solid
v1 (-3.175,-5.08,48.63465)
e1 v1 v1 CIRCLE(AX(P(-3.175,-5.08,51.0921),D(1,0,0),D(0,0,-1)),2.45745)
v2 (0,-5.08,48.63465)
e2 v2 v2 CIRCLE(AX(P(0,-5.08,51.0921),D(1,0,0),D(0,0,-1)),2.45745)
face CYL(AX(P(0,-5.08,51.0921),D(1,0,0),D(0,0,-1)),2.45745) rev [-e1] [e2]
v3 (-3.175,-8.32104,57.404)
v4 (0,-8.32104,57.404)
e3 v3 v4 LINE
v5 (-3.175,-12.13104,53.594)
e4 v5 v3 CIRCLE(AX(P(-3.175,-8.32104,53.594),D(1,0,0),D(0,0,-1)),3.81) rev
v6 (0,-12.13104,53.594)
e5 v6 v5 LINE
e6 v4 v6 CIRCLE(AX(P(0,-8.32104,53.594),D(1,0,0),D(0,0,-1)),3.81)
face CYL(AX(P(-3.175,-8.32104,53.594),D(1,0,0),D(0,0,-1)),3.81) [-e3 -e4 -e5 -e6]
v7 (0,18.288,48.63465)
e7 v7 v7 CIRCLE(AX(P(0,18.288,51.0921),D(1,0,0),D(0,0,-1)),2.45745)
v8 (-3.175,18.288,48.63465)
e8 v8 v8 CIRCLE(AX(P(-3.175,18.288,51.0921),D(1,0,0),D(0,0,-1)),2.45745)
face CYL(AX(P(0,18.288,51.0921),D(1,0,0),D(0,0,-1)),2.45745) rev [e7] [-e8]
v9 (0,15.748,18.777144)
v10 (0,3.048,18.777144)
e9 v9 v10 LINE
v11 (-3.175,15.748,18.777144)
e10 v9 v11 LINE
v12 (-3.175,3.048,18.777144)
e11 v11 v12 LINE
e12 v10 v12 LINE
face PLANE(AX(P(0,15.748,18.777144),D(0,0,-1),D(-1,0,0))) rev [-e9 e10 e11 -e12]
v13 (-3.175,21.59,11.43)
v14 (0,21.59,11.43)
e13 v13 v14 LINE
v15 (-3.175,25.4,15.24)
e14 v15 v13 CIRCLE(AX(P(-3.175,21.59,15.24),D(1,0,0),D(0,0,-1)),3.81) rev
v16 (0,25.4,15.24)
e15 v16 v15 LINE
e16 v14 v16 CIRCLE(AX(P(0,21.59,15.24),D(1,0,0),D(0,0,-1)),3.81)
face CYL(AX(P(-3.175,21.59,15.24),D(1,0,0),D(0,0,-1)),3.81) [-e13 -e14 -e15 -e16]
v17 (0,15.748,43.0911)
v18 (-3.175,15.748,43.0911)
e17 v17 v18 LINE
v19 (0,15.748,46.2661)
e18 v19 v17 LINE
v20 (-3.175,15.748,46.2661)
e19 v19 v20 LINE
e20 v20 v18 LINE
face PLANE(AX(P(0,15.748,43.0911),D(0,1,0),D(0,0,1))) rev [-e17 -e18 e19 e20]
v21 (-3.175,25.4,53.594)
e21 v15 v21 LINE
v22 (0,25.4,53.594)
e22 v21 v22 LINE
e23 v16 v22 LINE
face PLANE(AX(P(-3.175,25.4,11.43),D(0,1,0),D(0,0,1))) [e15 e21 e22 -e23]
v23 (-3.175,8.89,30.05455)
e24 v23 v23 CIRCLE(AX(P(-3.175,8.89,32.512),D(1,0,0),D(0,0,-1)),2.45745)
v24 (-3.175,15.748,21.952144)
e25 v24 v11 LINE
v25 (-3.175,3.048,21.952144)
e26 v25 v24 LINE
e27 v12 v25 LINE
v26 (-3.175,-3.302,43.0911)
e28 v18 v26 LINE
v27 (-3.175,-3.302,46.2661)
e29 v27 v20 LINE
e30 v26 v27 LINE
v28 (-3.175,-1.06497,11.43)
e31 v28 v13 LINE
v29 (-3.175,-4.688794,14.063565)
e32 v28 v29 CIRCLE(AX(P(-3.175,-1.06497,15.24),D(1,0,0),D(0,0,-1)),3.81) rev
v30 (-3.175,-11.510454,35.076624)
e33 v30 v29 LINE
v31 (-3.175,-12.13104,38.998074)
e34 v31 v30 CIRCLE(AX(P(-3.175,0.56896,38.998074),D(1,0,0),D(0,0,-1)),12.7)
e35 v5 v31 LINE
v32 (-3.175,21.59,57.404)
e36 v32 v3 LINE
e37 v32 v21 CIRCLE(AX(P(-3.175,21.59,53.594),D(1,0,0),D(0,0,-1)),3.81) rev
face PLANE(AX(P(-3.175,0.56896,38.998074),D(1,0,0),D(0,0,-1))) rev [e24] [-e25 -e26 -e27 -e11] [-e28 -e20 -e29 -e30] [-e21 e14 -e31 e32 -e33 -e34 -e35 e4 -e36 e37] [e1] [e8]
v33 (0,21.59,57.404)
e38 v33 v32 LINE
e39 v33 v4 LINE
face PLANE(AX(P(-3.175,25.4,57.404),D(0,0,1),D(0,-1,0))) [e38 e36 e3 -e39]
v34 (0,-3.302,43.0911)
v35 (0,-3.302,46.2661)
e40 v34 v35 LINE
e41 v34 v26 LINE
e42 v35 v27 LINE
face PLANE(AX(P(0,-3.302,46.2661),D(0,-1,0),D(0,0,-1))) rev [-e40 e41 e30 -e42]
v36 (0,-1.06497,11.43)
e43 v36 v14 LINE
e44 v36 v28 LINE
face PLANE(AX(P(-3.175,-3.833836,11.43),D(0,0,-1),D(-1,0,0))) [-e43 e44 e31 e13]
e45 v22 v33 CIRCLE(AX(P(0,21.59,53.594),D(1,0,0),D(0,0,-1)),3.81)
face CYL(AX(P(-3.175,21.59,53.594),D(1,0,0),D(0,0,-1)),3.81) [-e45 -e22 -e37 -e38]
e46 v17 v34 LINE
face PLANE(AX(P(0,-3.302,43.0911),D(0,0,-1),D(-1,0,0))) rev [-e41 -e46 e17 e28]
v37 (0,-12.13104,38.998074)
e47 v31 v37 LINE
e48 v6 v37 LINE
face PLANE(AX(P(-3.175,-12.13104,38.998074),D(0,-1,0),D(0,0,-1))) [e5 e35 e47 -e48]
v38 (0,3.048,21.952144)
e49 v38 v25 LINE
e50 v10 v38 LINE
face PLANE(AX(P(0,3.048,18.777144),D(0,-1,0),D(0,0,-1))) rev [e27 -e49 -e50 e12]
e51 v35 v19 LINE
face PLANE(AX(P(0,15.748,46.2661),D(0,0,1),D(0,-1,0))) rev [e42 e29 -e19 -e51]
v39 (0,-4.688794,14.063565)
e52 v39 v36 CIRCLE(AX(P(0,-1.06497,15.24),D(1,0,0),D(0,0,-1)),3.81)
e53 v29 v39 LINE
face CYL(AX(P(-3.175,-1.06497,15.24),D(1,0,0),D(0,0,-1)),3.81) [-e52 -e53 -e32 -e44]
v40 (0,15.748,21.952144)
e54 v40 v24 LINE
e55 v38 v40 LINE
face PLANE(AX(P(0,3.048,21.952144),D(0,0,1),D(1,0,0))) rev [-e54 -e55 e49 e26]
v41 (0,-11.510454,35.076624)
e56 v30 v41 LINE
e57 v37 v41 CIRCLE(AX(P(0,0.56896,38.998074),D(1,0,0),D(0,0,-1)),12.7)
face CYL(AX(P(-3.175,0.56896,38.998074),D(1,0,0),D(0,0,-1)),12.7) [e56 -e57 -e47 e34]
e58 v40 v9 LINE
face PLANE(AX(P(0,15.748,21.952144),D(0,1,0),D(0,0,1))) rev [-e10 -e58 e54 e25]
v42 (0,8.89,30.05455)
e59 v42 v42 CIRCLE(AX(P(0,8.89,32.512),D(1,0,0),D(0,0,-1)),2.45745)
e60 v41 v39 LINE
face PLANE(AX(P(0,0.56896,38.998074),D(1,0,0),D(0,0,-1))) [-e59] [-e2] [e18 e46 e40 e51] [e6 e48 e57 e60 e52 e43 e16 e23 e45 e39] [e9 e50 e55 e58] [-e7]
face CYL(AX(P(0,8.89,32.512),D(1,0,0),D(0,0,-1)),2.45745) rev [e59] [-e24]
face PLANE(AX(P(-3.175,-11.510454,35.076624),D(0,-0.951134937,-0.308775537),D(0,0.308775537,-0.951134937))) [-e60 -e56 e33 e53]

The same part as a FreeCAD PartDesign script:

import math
import FreeCAD as App
import Part
import Sketcher
from FreeCAD import Vector
Q = App.Units.Quantity


def edges_at(feature, points):
    """Names of the edges that pass closest to the given points."""
    edges = feature.Shape.Edges
    near = lambda p: min(range(len(edges)), key=lambda i: edges[i].distToShape(Part.Vertex(*p))[0])
    return sorted({f"Edge{near(p) + 1}" for p in points})


def add_polygon(sketch, points):
    """Adds a closed chain of lines whose ends are joined by coincident constraints."""
    first, n = sketch.GeometryCount, len(points)
    for a, b in zip(points, points[1:] + points[:1]):
        sketch.addGeometry(Part.LineSegment(App.Vector(*a, 0), App.Vector(*b, 0)), False)
    for i in range(n):
        sketch.addConstraint(Sketcher.Constraint("Coincident", first + i, 2, first + (i + 1) % n, 1))

doc = App.newDocument("Part")
params = doc.addObject("Spreadsheet::Sheet", "Params")
for row, (alias, value) in enumerate([
    ("sketch1_radius", "0.5 in"),
    ("sketch1_height", "1.81 in"),
    ("pad1_length", "0.125 in"),
    ("hole_diameter", "0.1935 in"),
    ("hole_depth", "0.44 in"),
    ("sketch3_width", "0.5 in"),
    ("sketch3_width2", "0.75 in"),
    ("sketch3_height", "0.125 in"),
    ("fillet_radius", "0.15 in"),
], start=1):
    params.set(f"A{row}", alias)
    params.set(f"B{row}", "=" + value)
    params.setAlias(f"B{row}", alias)

body = doc.addObject("PartDesign::Body", "Body")

# Sketch on YZ plane
sketch1 = body.newObject("Sketcher::SketchObject", "Sketch")
sketch1.AttachmentSupport = (doc.getObject("YZ_Plane"), [""])
sketch1.MapMode = "FlatFace"
sketch1.addGeometry([
    Part.LineSegment(Vector(25.4, 11.43, 0), Vector(25.4, 57.404, 0)),  # 0
    Part.LineSegment(Vector(25.4, 57.404, 0), Vector(-12.13104, 57.404, 0)),  # 1
    Part.LineSegment(Vector(-12.13104, 57.404, 0), Vector(-12.13104, 38.998074, 0)),  # 2
    Part.ArcOfCircle(Part.Circle(Vector(0.56896, 38.998074, 0), Vector(0, 0, 1), 12.7), math.radians(180), math.radians(197.985454)),  # 3
    Part.LineSegment(Vector(-11.510454, 35.076624, 0), Vector(-3.833836, 11.43, 0)),  # 4
    Part.LineSegment(Vector(-3.833836, 11.43, 0), Vector(25.4, 11.43, 0)),  # 5
], False)
sketch1.addConstraint([
    Sketcher.Constraint("Coincident", 0, 2, 1, 1),
    Sketcher.Constraint("Coincident", 1, 2, 2, 1),
    Sketcher.Constraint("Tangent", 2, 2, 3, 1),
    Sketcher.Constraint("Tangent", 3, 2, 4, 1),
    Sketcher.Constraint("Coincident", 4, 2, 5, 1),
    Sketcher.Constraint("Coincident", 5, 2, 0, 1),
    Sketcher.Constraint("Vertical", 0),
    Sketcher.Constraint("Horizontal", 1),
    Sketcher.Constraint("Vertical", 2),
    Sketcher.Constraint("Horizontal", 5),
    Sketcher.Constraint("Radius", 3, Q("0.5 in")),
    Sketcher.Constraint("DistanceX", -1, 1, 0, 2, Q("1 in")),
    Sketcher.Constraint("DistanceY", 0, 1, 0, 2, Q("1.81 in")),
    Sketcher.Constraint("DistanceY", -1, 1, 0, 2, Q("2.26 in")),
    Sketcher.Constraint("DistanceX", 1, 2, 1, 1, Q("1.4776 in")),
    Sketcher.Constraint("DistanceX", 5, 1, 5, 2, 29.233836),
    Sketcher.Constraint("DistanceY", 2, 2, 2, 1, 18.405926),
])
sketch1.setExpression("Constraints[10]", "Params.sketch1_radius")
sketch1.setExpression("Constraints[12]", "Params.sketch1_height")
pad1 = body.newObject("PartDesign::Pad", "Pad")
pad1.Profile = sketch1
pad1.setExpression("Length", "Params.pad1_length")
pad1.Reversed = True

# Sketch on YZ plane
sketch2 = body.newObject("Sketcher::SketchObject", "Sketch001")
sketch2.AttachmentSupport = (doc.getObject("YZ_Plane"), [""])
sketch2.MapMode = "FlatFace"
sketch2.addGeometry([
    Part.Circle(Vector(-5.08, 51.0921, 0), Vector(0, 0, 1), 2.45745),
    Part.Circle(Vector(18.288, 51.0921, 0), Vector(0, 0, 1), 2.45745),
    Part.Circle(Vector(8.89, 32.512, 0), Vector(0, 0, 1), 2.45745),
], False)
sketch2.addConstraint([
    Sketcher.Constraint("Equal", 0, 1),
    Sketcher.Constraint("Equal", 1, 2),
    Sketcher.Constraint("Horizontal", 0, 3, 1, 3),
    Sketcher.Constraint("Diameter", 0, Q("0.1935 in")),
    Sketcher.Constraint("DistanceX", 0, 3, -1, 1, Q("0.2 in")),
    Sketcher.Constraint("DistanceX", -1, 1, 1, 3, Q("0.72 in")),
    Sketcher.Constraint("DistanceX", -1, 1, 2, 3, Q("0.35 in")),
    Sketcher.Constraint("DistanceY", -1, 1, 2, 3, Q("1.28 in")),
    Sketcher.Constraint("DistanceY", -1, 1, 0, 3, Q("2.0115 in")),
])
doc.recompute()
hole = body.newObject("PartDesign::Hole", "Hole")
hole.Profile = sketch2
hole.ThreadType = "None"
hole.setExpression("Diameter", "Params.hole_diameter")
hole.DepthType = "Dimension"
hole.setExpression("Depth", "Params.hole_depth")
hole.DrillPoint = "Angled"
hole.DrillPointAngle = 118

# Sketch on YZ plane
sketch3 = body.newObject("Sketcher::SketchObject", "Sketch002")
sketch3.AttachmentSupport = (doc.getObject("YZ_Plane"), [""])
sketch3.MapMode = "FlatFace"
sketch3.AttachmentOffset = App.Placement(Vector(0, 0, -0.125 * 25.4), App.Rotation())
add_polygon(sketch3, [(15.748, 43.0911), (-3.302, 43.0911), (-3.302, 46.2661), (15.748, 46.2661)])  # lines 0-3
add_polygon(sketch3, [(15.748, 18.777144), (3.048, 18.777144), (3.048, 21.952144), (15.748, 21.952144)])  # lines 4-7
sketch3.addConstraint([
    Sketcher.Constraint("Horizontal", 0),
    Sketcher.Constraint("Vertical", 1),
    Sketcher.Constraint("Horizontal", 2),
    Sketcher.Constraint("Vertical", 3),
    Sketcher.Constraint("Horizontal", 4),
    Sketcher.Constraint("Vertical", 5),
    Sketcher.Constraint("Horizontal", 6),
    Sketcher.Constraint("Vertical", 7),
    Sketcher.Constraint("Vertical", 3, 2, 6, 2),
    Sketcher.Constraint("Equal", 3, 5),
    Sketcher.Constraint("DistanceX", 4, 2, 4, 1, Q("0.5 in")),
    Sketcher.Constraint("DistanceX", 0, 2, 0, 1, Q("0.75 in")),
    Sketcher.Constraint("DistanceY", 1, 1, 1, 2, Q("0.125 in")),
    Sketcher.Constraint("DistanceX", 0, 2, -1, 1, Q("0.13 in")),
    Sketcher.Constraint("DistanceY", -1, 1, 0, 2, Q("1.6965 in")),
    Sketcher.Constraint("DistanceY", -1, 1, 4, 2, 18.777144),
])
sketch3.setExpression("Constraints[18]", "Params.sketch3_width")
sketch3.setExpression("Constraints[19]", "Params.sketch3_width2")
sketch3.setExpression("Constraints[20]", "Params.sketch3_height")
pocket1 = body.newObject("PartDesign::Pocket", "Pocket")
pocket1.Profile = sketch3
pocket1.Type = "ThroughAll"
pocket1.Reversed = True
doc.recompute()

fillet = body.newObject("PartDesign::Fillet", "Fillet")
fillet.Base = (pocket1, edges_at(pocket1, [
    (-1.587, -12.131, 57.404),
    (-1.587, 25.4, 57.404),
    (-1.587, 25.4, 11.43),
    (-1.587, -3.834, 11.43),
]))
fillet.setExpression("Radius", "Params.fillet_radius")

doc.recompute()
